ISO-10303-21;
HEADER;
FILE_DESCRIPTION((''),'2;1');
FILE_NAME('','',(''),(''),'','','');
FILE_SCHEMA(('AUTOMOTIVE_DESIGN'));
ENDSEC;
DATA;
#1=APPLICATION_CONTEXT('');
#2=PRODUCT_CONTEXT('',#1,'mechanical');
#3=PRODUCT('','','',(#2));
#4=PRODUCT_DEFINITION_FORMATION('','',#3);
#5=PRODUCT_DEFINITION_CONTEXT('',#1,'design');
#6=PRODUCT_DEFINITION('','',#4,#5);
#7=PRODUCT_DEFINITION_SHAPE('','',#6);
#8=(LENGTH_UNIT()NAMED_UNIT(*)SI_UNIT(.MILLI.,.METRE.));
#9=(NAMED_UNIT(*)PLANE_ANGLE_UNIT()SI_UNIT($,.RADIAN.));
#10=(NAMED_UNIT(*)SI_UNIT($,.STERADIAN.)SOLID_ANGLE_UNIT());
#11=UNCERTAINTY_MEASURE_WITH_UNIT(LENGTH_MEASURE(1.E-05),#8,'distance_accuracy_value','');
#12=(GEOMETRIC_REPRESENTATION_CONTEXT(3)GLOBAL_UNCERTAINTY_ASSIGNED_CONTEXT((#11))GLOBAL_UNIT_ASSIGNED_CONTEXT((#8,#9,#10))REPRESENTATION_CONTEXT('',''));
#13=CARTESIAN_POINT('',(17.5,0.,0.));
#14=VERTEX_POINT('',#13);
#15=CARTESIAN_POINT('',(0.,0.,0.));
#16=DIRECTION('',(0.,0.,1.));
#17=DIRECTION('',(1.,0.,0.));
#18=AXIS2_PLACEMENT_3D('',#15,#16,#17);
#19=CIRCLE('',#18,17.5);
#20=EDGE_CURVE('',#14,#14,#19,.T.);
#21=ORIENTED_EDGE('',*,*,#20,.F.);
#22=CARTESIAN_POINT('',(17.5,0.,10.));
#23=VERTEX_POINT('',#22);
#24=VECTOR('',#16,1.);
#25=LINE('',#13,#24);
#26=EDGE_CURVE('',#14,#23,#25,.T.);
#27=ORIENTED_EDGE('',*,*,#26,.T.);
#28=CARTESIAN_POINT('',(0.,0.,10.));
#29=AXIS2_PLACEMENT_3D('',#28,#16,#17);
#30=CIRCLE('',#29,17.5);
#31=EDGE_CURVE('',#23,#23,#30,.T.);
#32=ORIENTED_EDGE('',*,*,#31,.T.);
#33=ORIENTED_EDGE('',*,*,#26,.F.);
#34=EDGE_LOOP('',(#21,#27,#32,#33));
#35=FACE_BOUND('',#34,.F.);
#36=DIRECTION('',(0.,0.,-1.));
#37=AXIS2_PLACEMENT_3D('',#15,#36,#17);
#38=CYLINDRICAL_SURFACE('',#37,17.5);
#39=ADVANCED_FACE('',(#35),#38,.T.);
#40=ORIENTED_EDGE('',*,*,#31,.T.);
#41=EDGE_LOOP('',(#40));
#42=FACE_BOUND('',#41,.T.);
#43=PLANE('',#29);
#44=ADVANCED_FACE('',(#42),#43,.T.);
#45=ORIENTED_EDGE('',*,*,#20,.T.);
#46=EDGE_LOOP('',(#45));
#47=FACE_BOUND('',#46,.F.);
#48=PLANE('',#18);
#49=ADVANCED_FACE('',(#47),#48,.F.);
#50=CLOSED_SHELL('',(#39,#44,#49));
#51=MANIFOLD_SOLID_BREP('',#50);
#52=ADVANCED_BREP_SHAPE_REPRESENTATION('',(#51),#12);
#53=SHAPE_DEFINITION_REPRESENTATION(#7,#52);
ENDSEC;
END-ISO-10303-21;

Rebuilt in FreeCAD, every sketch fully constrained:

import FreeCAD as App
import Part
import Sketcher

V = App.Vector
Q = App.Units.Quantity

doc = App.newDocument("Part")
body = doc.addObject("PartDesign::Body", "Body")

sketch1 = doc.addObject("Sketcher::SketchObject", "Sketch")
body.addObject(sketch1)
sketch1.AttachmentSupport = (doc.XY_Plane, [""])
sketch1.MapMode = "FlatFace"
sketch1.addGeometry(Part.Circle(V(0, 0, 0), V(0, 0, 1), 17.5), False)
sketch1.addConstraint([
    Sketcher.Constraint("Coincident", 0, 3, -1, 1),
    Sketcher.Constraint("Diameter", 0, Q("35 mm")),
])
pad1 = doc.addObject("PartDesign::Pad", "Pad")
body.addObject(pad1)
pad1.Profile = sketch1
pad1.Length = 10

doc.recompute()
